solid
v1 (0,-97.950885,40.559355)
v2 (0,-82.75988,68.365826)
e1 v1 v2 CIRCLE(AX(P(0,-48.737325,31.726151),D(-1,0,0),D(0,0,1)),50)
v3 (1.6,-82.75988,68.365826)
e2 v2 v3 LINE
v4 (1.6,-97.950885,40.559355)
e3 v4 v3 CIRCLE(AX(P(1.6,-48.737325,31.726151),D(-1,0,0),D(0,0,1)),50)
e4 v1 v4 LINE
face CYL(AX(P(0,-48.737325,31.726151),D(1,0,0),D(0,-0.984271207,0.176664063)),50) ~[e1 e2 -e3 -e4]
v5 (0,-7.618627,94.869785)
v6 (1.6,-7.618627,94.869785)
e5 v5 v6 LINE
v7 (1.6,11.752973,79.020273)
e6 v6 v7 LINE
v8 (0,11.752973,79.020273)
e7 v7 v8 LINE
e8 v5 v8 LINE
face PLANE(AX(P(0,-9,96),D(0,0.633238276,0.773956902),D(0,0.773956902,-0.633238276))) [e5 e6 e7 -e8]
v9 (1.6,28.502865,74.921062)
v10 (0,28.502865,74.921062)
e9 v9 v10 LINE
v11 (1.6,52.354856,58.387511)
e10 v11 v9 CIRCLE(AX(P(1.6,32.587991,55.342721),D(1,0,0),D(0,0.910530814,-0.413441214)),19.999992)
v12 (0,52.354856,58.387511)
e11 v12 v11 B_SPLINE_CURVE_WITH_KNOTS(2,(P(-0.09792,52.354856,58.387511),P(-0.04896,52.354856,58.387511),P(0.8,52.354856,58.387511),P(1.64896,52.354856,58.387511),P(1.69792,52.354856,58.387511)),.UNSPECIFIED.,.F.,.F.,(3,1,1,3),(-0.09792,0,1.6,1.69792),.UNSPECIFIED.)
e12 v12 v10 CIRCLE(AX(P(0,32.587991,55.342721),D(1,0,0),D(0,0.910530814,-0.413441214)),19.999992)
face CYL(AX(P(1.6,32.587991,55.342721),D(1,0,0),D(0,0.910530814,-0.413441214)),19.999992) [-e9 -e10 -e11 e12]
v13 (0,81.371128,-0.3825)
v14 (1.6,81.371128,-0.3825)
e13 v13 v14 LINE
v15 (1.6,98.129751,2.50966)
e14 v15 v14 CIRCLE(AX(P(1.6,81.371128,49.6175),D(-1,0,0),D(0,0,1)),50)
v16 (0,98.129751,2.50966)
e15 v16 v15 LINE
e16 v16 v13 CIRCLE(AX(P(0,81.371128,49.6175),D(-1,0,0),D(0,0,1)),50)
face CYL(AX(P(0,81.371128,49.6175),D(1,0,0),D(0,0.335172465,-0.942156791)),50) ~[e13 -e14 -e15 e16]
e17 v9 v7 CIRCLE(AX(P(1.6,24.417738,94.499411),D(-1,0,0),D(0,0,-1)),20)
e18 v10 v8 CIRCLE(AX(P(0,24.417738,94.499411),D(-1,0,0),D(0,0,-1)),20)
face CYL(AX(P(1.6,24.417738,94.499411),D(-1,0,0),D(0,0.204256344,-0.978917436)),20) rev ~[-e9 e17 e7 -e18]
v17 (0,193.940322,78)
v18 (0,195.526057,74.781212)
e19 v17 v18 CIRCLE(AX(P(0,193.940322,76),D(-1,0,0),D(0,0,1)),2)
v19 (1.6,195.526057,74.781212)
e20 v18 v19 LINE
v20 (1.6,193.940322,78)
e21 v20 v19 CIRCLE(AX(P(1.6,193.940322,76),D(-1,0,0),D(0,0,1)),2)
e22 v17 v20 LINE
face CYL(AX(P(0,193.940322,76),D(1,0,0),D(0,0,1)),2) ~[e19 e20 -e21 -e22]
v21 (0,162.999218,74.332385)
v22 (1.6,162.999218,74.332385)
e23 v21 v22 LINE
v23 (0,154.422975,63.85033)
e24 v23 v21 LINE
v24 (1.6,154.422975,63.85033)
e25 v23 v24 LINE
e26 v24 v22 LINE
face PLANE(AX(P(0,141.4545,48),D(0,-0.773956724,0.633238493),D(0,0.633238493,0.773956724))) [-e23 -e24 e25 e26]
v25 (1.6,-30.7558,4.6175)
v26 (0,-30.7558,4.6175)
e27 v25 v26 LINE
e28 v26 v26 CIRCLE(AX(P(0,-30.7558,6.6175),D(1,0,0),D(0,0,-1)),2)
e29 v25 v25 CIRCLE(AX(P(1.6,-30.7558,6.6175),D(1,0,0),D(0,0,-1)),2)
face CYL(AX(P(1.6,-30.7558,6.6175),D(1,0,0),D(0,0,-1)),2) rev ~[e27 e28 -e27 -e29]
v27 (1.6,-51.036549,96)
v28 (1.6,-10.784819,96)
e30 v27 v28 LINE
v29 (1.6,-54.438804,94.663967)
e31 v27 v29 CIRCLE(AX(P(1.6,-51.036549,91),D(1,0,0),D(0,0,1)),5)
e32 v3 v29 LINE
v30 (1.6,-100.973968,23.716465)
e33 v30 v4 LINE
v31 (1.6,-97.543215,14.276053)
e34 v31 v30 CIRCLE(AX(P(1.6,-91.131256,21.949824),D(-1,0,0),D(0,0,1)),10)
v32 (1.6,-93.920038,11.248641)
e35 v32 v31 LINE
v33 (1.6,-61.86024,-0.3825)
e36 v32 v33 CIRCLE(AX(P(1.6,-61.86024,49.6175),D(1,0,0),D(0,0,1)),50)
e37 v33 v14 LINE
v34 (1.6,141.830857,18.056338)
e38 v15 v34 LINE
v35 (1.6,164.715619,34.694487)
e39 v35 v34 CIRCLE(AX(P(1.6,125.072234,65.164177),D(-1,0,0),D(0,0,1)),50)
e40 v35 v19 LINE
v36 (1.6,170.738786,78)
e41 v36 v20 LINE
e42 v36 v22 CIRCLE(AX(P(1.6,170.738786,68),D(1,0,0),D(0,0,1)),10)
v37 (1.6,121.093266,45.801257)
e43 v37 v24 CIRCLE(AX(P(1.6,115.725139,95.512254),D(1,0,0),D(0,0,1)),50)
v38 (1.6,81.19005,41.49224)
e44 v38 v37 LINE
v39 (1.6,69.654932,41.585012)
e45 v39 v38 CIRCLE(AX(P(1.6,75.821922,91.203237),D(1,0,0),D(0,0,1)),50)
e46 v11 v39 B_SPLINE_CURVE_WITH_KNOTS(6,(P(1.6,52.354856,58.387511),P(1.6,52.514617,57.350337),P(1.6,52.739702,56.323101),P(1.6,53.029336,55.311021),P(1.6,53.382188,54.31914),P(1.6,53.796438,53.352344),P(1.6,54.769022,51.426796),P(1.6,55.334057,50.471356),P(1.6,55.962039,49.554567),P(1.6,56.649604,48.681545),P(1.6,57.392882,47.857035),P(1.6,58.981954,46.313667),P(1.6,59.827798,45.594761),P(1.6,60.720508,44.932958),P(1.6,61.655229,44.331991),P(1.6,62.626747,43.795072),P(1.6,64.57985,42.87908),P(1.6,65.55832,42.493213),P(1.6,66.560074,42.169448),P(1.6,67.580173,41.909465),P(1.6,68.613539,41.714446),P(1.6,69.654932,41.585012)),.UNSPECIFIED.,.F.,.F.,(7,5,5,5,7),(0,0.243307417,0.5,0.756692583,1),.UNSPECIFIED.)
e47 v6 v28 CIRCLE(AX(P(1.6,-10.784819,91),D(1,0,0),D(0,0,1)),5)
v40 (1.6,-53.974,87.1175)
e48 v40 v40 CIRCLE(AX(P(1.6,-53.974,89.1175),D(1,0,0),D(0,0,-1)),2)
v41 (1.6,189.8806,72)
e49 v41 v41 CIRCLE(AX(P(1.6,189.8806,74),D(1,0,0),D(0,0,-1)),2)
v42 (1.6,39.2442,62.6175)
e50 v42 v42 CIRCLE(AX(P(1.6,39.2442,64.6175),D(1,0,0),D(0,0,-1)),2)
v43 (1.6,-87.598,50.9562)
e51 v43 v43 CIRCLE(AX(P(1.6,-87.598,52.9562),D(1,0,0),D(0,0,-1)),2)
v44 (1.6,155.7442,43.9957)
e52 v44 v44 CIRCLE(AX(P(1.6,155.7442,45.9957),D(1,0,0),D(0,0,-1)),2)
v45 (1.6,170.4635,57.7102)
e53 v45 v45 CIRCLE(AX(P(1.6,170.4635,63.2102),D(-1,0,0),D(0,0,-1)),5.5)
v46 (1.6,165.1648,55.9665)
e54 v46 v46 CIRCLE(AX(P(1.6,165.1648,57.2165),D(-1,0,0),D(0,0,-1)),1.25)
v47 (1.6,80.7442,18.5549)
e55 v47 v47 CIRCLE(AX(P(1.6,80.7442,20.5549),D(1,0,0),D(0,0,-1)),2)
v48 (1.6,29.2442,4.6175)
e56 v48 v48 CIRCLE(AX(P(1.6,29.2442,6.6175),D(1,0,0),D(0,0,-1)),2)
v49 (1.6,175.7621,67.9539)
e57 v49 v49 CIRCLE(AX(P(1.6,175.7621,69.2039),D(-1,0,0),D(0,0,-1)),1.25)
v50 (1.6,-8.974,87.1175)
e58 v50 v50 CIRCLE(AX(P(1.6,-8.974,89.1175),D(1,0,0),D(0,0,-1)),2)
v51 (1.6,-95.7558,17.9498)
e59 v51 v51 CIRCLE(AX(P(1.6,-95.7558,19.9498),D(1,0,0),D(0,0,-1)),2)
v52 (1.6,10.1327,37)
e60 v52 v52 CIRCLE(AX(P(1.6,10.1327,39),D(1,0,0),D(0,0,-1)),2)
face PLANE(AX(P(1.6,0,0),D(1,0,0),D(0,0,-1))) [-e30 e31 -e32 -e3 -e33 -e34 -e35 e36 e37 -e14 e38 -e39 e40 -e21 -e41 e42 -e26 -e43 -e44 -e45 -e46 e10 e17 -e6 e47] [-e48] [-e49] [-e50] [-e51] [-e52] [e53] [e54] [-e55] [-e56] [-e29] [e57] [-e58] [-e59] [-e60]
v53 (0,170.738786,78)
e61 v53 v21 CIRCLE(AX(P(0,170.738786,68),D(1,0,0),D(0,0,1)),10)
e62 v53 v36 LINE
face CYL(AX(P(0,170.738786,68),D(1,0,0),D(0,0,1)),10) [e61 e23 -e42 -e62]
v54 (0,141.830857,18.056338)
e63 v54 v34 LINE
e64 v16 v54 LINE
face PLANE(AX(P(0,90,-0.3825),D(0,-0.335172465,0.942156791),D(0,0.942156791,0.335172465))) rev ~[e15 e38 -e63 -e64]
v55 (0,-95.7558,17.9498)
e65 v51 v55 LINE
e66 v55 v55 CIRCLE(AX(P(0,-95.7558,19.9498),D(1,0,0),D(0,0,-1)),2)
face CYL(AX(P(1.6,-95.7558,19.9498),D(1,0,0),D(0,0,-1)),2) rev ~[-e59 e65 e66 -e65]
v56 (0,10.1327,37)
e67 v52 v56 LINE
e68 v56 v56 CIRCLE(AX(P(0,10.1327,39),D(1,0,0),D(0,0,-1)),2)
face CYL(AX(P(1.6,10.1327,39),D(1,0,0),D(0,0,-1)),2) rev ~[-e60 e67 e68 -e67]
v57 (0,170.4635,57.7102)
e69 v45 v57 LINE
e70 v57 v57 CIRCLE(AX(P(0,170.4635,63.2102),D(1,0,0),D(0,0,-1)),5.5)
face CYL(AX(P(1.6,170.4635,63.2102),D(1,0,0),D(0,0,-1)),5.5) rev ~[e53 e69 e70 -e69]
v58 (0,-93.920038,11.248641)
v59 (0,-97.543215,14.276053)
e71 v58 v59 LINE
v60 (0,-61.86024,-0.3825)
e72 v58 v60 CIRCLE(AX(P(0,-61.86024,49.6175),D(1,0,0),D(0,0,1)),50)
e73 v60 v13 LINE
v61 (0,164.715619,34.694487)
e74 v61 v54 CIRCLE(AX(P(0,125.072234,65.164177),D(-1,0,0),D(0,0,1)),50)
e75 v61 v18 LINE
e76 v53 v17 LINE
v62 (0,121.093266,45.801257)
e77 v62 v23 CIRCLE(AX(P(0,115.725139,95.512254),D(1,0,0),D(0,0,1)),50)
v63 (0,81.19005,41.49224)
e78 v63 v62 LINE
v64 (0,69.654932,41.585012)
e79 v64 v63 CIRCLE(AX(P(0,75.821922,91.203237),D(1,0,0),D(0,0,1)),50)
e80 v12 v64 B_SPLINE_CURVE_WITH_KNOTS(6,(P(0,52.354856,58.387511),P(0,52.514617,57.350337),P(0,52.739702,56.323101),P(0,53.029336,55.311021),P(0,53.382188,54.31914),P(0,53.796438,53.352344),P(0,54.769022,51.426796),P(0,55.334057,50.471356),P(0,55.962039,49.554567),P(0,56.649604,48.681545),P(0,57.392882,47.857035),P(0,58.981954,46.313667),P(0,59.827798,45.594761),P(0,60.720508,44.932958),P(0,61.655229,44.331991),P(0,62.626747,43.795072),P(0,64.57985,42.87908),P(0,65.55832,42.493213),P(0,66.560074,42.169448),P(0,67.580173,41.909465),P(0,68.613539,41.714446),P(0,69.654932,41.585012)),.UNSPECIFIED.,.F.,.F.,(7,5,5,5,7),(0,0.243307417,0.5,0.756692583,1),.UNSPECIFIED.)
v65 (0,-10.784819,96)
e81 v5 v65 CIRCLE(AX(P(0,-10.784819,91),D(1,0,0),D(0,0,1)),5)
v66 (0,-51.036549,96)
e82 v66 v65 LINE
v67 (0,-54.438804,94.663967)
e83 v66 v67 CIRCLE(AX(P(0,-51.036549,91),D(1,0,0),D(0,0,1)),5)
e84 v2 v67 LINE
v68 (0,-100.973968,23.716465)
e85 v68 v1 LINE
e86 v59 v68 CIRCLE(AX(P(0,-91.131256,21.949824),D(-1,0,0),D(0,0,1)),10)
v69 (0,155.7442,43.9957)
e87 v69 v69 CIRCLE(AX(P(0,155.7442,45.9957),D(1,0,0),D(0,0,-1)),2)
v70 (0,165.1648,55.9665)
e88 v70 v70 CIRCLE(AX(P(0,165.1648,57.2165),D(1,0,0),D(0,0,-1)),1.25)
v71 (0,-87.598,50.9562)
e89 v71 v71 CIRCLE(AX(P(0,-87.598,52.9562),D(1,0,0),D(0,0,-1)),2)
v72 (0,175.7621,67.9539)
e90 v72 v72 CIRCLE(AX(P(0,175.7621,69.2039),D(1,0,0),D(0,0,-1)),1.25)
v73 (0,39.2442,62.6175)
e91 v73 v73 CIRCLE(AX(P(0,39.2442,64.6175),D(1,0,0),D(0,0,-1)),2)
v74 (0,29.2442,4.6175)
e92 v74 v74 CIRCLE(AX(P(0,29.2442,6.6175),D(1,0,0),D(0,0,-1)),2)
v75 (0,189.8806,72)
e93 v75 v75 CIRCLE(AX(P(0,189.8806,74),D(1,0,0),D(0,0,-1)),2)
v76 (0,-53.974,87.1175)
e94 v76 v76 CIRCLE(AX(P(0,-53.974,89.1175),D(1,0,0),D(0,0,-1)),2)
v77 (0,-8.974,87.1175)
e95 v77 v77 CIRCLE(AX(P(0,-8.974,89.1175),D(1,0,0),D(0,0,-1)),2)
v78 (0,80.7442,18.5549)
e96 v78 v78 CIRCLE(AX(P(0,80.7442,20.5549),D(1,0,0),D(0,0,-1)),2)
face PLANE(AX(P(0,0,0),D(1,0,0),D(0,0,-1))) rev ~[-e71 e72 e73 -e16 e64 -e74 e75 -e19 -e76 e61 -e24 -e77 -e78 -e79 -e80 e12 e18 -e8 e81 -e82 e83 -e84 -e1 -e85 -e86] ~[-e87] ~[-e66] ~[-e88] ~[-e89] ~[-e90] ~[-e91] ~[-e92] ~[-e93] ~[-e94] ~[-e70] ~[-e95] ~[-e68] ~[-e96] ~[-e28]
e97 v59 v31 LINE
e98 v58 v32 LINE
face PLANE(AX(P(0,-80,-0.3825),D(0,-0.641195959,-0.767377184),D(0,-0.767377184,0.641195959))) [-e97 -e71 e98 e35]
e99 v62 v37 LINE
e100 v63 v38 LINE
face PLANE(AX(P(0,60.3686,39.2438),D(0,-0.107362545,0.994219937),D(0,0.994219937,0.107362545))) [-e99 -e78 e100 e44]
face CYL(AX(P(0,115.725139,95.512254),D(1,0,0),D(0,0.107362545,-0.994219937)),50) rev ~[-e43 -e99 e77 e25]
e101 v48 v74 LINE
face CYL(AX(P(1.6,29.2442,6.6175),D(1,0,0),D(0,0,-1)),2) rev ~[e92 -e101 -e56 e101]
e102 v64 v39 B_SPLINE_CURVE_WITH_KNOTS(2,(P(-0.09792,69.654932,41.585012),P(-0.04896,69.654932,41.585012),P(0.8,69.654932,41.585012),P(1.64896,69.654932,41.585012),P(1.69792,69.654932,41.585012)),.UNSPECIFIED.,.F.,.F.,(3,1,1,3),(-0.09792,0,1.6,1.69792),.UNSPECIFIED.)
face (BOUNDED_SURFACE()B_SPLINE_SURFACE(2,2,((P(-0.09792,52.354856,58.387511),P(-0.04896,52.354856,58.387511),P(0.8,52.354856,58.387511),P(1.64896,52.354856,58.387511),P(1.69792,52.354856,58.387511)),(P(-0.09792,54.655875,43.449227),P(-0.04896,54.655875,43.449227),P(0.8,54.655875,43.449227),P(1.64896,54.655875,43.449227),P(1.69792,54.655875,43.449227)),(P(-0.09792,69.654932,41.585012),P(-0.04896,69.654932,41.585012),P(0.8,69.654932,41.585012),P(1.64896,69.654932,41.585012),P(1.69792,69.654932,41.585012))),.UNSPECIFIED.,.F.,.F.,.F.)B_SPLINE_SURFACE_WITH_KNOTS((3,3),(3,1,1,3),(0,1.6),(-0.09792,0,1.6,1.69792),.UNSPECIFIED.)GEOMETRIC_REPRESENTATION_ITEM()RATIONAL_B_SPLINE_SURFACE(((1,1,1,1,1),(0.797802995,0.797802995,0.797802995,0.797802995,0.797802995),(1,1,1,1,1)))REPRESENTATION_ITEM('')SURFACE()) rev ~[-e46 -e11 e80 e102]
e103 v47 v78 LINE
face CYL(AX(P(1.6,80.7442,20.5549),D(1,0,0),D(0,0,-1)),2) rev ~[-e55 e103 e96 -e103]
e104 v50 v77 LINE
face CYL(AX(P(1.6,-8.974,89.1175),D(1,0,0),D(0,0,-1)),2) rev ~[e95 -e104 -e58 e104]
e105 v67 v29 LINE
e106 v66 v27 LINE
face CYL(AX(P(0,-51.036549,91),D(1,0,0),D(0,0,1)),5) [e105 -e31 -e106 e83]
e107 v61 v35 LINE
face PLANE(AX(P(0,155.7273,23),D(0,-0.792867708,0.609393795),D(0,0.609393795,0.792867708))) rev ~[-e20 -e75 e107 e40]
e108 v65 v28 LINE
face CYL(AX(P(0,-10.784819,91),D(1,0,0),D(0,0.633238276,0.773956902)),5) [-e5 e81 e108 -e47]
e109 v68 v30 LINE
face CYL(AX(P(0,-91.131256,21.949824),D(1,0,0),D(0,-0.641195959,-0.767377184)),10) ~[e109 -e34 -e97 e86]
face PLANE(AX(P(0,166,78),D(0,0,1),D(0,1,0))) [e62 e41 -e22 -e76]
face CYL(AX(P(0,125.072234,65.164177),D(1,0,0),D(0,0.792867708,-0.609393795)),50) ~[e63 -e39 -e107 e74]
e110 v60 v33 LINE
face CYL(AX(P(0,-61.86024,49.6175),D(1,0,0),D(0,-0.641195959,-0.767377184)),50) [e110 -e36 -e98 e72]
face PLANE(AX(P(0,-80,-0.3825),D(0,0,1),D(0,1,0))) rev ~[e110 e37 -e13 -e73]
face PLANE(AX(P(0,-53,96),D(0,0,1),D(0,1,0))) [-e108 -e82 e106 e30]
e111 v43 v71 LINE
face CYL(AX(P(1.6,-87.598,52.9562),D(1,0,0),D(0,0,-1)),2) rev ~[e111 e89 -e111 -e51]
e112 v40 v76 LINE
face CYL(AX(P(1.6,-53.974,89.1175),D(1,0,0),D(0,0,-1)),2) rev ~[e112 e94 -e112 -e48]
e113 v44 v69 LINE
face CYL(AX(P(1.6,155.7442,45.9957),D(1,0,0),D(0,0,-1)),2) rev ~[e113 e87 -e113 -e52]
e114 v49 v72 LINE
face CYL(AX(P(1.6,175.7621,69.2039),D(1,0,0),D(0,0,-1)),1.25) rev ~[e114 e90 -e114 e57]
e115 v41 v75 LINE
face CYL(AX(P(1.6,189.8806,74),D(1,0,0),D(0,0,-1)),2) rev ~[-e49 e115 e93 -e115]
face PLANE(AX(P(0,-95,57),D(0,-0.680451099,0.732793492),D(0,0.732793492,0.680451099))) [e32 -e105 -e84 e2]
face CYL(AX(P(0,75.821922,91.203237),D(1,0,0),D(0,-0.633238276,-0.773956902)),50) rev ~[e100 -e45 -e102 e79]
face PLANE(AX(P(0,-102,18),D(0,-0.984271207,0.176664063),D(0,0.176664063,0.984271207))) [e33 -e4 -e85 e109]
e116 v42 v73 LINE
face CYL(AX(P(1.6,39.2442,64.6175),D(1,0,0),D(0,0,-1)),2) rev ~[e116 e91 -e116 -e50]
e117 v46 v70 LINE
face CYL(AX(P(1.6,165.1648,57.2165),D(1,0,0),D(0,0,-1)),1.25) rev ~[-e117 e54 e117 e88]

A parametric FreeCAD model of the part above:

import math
import FreeCAD as App
import Part
import Sketcher

V = App.Vector
Q = App.Units.Quantity


def edges_at(feature, points):
    """Names of the edges that pass closest to the given points."""
    edges = feature.Shape.Edges
    near = lambda p: min(range(len(edges)), key=lambda i: edges[i].distToShape(Part.Vertex(*p))[0])
    return sorted({f"Edge{near(p) + 1}" for p in points})


def add_polygon(sketch, points):
    """Adds a closed chain of lines whose ends are joined by coincident constraints."""
    first, n = sketch.GeometryCount, len(points)
    for a, b in zip(points, points[1:] + points[:1]):
        sketch.addGeometry(Part.LineSegment(App.Vector(*a, 0), App.Vector(*b, 0)), False)
    for i in range(n):
        sketch.addConstraint(Sketcher.Constraint("Coincident", first + i, 2, first + (i + 1) % n, 1))

doc = App.newDocument("Part")
body = doc.addObject("PartDesign::Body", "Body")

sketch1 = body.newObject("Sketcher::SketchObject", "Sketch")
sketch1.AttachmentSupport = (doc.getObject("YZ_Plane"), [""])
sketch1.MapMode = "FlatFace"
add_polygon(sketch1, [(-102, 18), (-80, 0), (90, 0), (156, 23), (198, 78), (166, 78), (141, 48), (60, 39), (-9, 96), (-53, 96), (-95, 57)])
sketch1.addConstraint([
    Sketcher.Constraint("Horizontal", 1),
    Sketcher.Constraint("Horizontal", 4),
    Sketcher.Constraint("Horizontal", 8),
    Sketcher.Constraint("Perpendicular", 5, 7),
    Sketcher.Constraint("DistanceX", 1, 1, 1, 2, 170.0),
    Sketcher.Constraint("DistanceX", 4, 2, 4, 1, 32.0),
    Sketcher.Constraint("DistanceX", 8, 2, 8, 1, 44.0),
    Sketcher.Constraint("DistanceX", 0, 2, -1, 1, 80.0),
    Sketcher.Constraint("DistanceY", -1, 1, 2, 2, 23.0),
    Sketcher.Constraint("DistanceX", -1, 1, 3, 2, 198.0),
    Sketcher.Constraint("DistanceY", -1, 1, 3, 2, 78.0),
    Sketcher.Constraint("DistanceY", -1, 1, 5, 2, 48.0),
    Sketcher.Constraint("DistanceX", 7, 2, -1, 1, 9.0),
    Sketcher.Constraint("DistanceY", -1, 1, 7, 2, 96.0),
    Sketcher.Constraint("DistanceX", 9, 2, -1, 1, 95.0),
    Sketcher.Constraint("DistanceY", -1, 1, 9, 2, 57.0),
    Sketcher.Constraint("DistanceX", 10, 2, -1, 1, 102.0),
    Sketcher.Constraint("DistanceY", -1, 1, 10, 2, 18.0),
    Sketcher.Constraint("Angle", 0, Q("-39.881 deg")),
    Sketcher.Constraint("Angle", 5, Q("-129.2895 deg")),
    Sketcher.Constraint("DistanceX", 6, 2, 5, 2, 81.086),
    Sketcher.Constraint("Distance", 2, 69.7626),
])
pad1 = body.newObject("PartDesign::Pad", "Pad")
pad1.Profile = sketch1
pad1.Length = 1.6
doc.recompute()

fillet = body.newObject("PartDesign::Fillet", "Fillet")
fillet.Base = (pad1, edges_at(pad1, [
    (0.8, -95, 57),
    (0.8, -80, -0.383),
    (0.8, 60.369, 39.244),
    (0.8, 141.454, 48),
    (0.8, 155.727, 23),
    (0.8, 90, -0.383),
]))
fillet.Radius = 50
doc.recompute()

fillet2 = body.newObject("PartDesign::Fillet", "Fillet001")
fillet2.Base = (fillet, edges_at(fillet, [(0.8, -102, 18)]))
fillet2.Radius = 10
doc.recompute()

fillet3 = body.newObject("PartDesign::Fillet", "Fillet002")
fillet3.Base = (fillet2, edges_at(fillet2, [(0.8, 166, 78)]))
fillet3.Radius = 10
doc.recompute()

fillet4 = body.newObject("PartDesign::Fillet", "Fillet003")
fillet4.Base = (fillet3, edges_at(fillet3, [(0.8, 198, 78)]))
fillet4.Radius = 2
doc.recompute()

fillet5 = body.newObject("PartDesign::Fillet", "Fillet004")
fillet5.Base = (fillet4, edges_at(fillet4, [(0.8, -9, 96), (0.8, -53, 96)]))
fillet5.Radius = 5

sketch2 = body.newObject("Sketcher::SketchObject", "Sketch001")
sketch2.AttachmentSupport = (doc.getObject("YZ_Plane"), [""])
sketch2.MapMode = "FlatFace"
sketch2.AttachmentOffset = App.Placement(V(0, 0, 1.6), App.Rotation())
sketch2.addGeometry([
    Part.Circle(V(-54, 89.1, 0), V(0, 0, 1), 2),
    Part.Circle(V(-95.8, 19.9, 0), V(0, 0, 1), 2),
    Part.Circle(V(-30.8, 6.6, 0), V(0, 0, 1), 2),
    Part.Circle(V(10.1, 39, 0), V(0, 0, 1), 2),
    Part.Circle(V(80.7, 20.6, 0), V(0, 0, 1), 2),
    Part.Circle(V(155.7, 46, 0), V(0, 0, 1), 2),
    Part.Circle(V(29.2, 6.6, 0), V(0, 0, 1), 2),
    Part.Circle(V(189.9, 74, 0), V(0, 0, 1), 2),
    Part.Circle(V(-87.6, 53, 0), V(0, 0, 1), 2),
    Part.Circle(V(-9, 89.1, 0), V(0, 0, 1), 2),
], False)
sketch2.addConstraint([
    Sketcher.Constraint("Equal", 0, 1),
    Sketcher.Constraint("Equal", 1, 2),
    Sketcher.Constraint("Equal", 2, 3),
    Sketcher.Constraint("Equal", 3, 4),
    Sketcher.Constraint("Equal", 4, 5),
    Sketcher.Constraint("Equal", 5, 6),
    Sketcher.Constraint("Equal", 6, 7),
    Sketcher.Constraint("Equal", 7, 8),
    Sketcher.Constraint("Equal", 8, 9),
    Sketcher.Constraint("Horizontal", 2, 3, 6, 3),
    Sketcher.Constraint("Horizontal", 0, 3, 9, 3),
    Sketcher.Constraint("Diameter", 0, 4.0),
    Sketcher.Constraint("DistanceX", 1, 3, 2, 3, 65.0),
    Sketcher.Constraint("DistanceX", 4, 3, 5, 3, 75.0),
    Sketcher.Constraint("DistanceX", 2, 3, 6, 3, 60.0),
    Sketcher.Constraint("DistanceX", 0, 3, 9, 3, 45.0),
    Sketcher.Constraint("DistanceX", 6, 3, 4, 3, 51.5),
    Sketcher.Constraint("DistanceY", -1, 1, 3, 3, 39.0),
    Sketcher.Constraint("DistanceY", -1, 1, 7, 3, 74.0),
    Sketcher.Constraint("DistanceY", 2, 3, 0, 3, 82.5),
    Sketcher.Constraint("DistanceX", 0, 3, -1, 1, 53.974),
    Sketcher.Constraint("DistanceY", -1, 1, 4, 3, 20.555),
    Sketcher.Constraint("DistanceX", 8, 3, -1, 1, 87.598),
    Sketcher.Constraint("DistanceY", 1, 3, 4, 3, 0.605),
    Sketcher.Constraint("DistanceY", 1, 3, 5, 3, 26.046),
    Sketcher.Constraint("DistanceX", 3, 3, 7, 3, 179.748),
    Sketcher.Constraint("DistanceY", -1, 1, 0, 3, 89.1175),
    Sketcher.Constraint("DistanceX", 1, 3, -1, 1, 95.7558),
    Sketcher.Constraint("DistanceX", -1, 1, 3, 3, 10.1327),
    Sketcher.Constraint("DistanceY", -1, 1, 8, 3, 52.9562),
])
pocket1 = body.newObject("PartDesign::Pocket", "Pocket")
pocket1.Profile = sketch2
pocket1.Length = 4

sketch3 = body.newObject("Sketcher::SketchObject", "Sketch002")
sketch3.AttachmentSupport = (doc.getObject("YZ_Plane"), [""])
sketch3.MapMode = "FlatFace"
sketch3.AttachmentOffset = App.Placement(V(0, 0, 1.6), App.Rotation())
sketch3.addGeometry([
    Part.Circle(V(170.5, 63.2, 0), V(0, 0, 1), 5.5),
    Part.Circle(V(165.2, 57.2, 0), V(0, 0, 1), 1.2),
    Part.Circle(V(175.8, 69.2, 0), V(0, 0, 1), 1.2),
], False)
sketch3.addConstraint([
    Sketcher.Constraint("Equal", 1, 2),
    Sketcher.Constraint("Diameter", 0, 11.0),
    Sketcher.Constraint("Diameter", 1, 2.5),
    Sketcher.Constraint("DistanceX", -1, 1, 2, 3, 175.762),
    Sketcher.Constraint("DistanceY", -1, 1, 2, 3, 69.204),
    Sketcher.Constraint("DistanceX", -1, 1, 0, 3, 170.4635),
    Sketcher.Constraint("DistanceY", -1, 1, 0, 3, 63.2102),
    Sketcher.Constraint("DistanceX", -1, 1, 1, 3, 165.1648),
    Sketcher.Constraint("DistanceY", -1, 1, 1, 3, 57.2165),
])
pocket2 = body.newObject("PartDesign::Pocket", "Pocket001")
pocket2.Profile = sketch3
pocket2.Type = "ThroughAll"

sketch4 = body.newObject("Sketcher::SketchObject", "Sketch003")
sketch4.AttachmentSupport = (doc.getObject("YZ_Plane"), [""])
sketch4.MapMode = "FlatFace"
sketch4.AttachmentOffset = App.Placement(V(0, 0, 1.6), App.Rotation())
sketch4.addGeometry([
    Part.LineSegment(V(21, 72, 0), V(44, 53, 0)),
    Part.LineSegment(V(44, 53, 0), V(51, 47, 0)),
    Part.ArcOfCircle(Part.Circle(V(33, 55, 0), V(0, 0, 1), 20), math.radians(-24), math.radians(126)),
], False)
sketch4.addConstraint([
    Sketcher.Constraint("Coincident", 0, 2, 1, 1),
    Sketcher.Constraint("Coincident", 1, 2, 2, 1),
    Sketcher.Constraint("Coincident", 2, 2, 0, 1),
    Sketcher.Constraint("Parallel", 0, 1),
    Sketcher.Constraint("Radius", 2, 20.0),
    Sketcher.Constraint("Angle", 0, Q("-39.2894 deg")),
    Sketcher.Constraint("DistanceX", -1, 1, 0, 2, 44.16),
    Sketcher.Constraint("DistanceY", 0, 2, 2, 2, 19.05),
    Sketcher.Constraint("DistanceX", -1, 1, 2, 3, 32.588),
    Sketcher.Constraint("DistanceY", -1, 1, 1, 2, 47.074),
])
pad2 = body.newObject("PartDesign::Pad", "Pad001")
pad2.Profile = sketch4
pad2.Length = 1.6
pad2.Reversed = True
doc.recompute()

fillet6 = body.newObject("PartDesign::Fillet", "Fillet005")
fillet6.Base = (pad2, edges_at(pad2, [(0.8, 20.877, 71.555), (0.8, 51.09, 47.748)]))
fillet6.Radius = 20

sketch5 = body.newObject("Sketcher::SketchObject", "Sketch004")
sketch5.AttachmentSupport = (doc.getObject("YZ_Plane"), [""])
sketch5.MapMode = "FlatFace"
sketch5.AttachmentOffset = App.Placement(V(0, 0, 1.6), App.Rotation())
sketch5.addGeometry(Part.Circle(V(39.2, 64.6, 0), V(0, 0, 1), 2), False)
sketch5.addConstraint([
    Sketcher.Constraint("Diameter", 0, 4.0),
    Sketcher.Constraint("DistanceX", -1, 1, 0, 3, 39.2442),
    Sketcher.Constraint("DistanceY", -1, 1, 0, 3, 64.6175),
])
pocket3 = body.newObject("PartDesign::Pocket", "Pocket002")
pocket3.Profile = sketch5
pocket3.Type = "ThroughAll"

doc.recompute()
